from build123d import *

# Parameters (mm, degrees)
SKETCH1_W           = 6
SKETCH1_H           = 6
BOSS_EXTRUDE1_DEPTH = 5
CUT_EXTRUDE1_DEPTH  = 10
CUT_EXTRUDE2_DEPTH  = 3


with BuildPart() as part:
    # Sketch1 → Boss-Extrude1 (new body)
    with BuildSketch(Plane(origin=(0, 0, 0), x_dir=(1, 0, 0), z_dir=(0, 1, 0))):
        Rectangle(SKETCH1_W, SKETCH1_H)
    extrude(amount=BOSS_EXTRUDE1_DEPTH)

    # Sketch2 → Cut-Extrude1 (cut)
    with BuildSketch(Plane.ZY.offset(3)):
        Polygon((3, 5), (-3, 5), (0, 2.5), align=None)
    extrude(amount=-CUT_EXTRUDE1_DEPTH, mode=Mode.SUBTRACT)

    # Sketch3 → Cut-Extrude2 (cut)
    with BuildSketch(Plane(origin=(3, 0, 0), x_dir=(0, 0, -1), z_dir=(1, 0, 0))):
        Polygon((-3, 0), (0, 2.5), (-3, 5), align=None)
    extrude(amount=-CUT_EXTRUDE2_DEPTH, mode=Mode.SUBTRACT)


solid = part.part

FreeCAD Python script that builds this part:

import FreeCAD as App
import Part
import Sketcher
from FreeCAD import Vector
Q = App.Units.Quantity


def add_polygon(sketch, points):
    """Adds a closed chain of lines whose ends are joined by coincident constraints."""
    first, n = sketch.GeometryCount, len(points)
    for a, b in zip(points, points[1:] + points[:1]):
        sketch.addGeometry(Part.LineSegment(App.Vector(*a, 0), App.Vector(*b, 0)), False)
    for i in range(n):
        sketch.addConstraint(Sketcher.Constraint("Coincident", first + i, 2, first + (i + 1) % n, 1))

doc = App.newDocument("Part")
params = doc.addObject("Spreadsheet::Sheet", "Params")
for row, (alias, value) in enumerate([
    ("sketch1_width", "6 mm"),
    ("pad1_length", "5 mm"),
    ("sketch2_height", "6 mm"),
    ("pocket1_length", "10 mm"),
    ("sketch3_width", "5 mm"),
    ("pocket2_length", "3 mm"),
], start=1):
    params.set(f"A{row}", alias)
    params.set(f"B{row}", "=" + value)
    params.setAlias(f"B{row}", alias)

body = doc.addObject("PartDesign::Body", "Body")

# Sketch on XZ plane
sketch1 = body.newObject("Sketcher::SketchObject", "Sketch")
sketch1.AttachmentSupport = (doc.getObject("XZ_Plane"), [""])
sketch1.MapMode = "FlatFace"
add_polygon(sketch1, [(-3, -3), (-3, 3), (3, 3), (3, -3)])  # lines 0-3
sketch1.addConstraint(Sketcher.Constraint("Vertical", 0))
sketch1.addConstraint(Sketcher.Constraint("Horizontal", 1))
sketch1.addConstraint(Sketcher.Constraint("Vertical", 2))
sketch1.addConstraint(Sketcher.Constraint("Horizontal", 3))
sketch1.addConstraint(Sketcher.Constraint("Symmetric", 0, 2, 2, 2, -1, 1))
sketch1.addConstraint(Sketcher.Constraint("Equal", 3, 0))
sketch1.addConstraint(Sketcher.Constraint("DistanceX", 1, 1, 1, 2, Q("6 mm")))
sketch1.setExpression("Constraints[10]", "Params.sketch1_width")
pad1 = body.newObject("PartDesign::Pad", "Pad")
pad1.Profile = sketch1
pad1.setExpression("Length", "Params.pad1_length")
pad1.Reversed = True

# Sketch on YZ plane
sketch2 = body.newObject("Sketcher::SketchObject", "Sketch001")
sketch2.AttachmentSupport = (doc.getObject("YZ_Plane"), [""])
sketch2.MapMode = "FlatFace"
sketch2.AttachmentOffset = App.Placement(Vector(0, 0, -3), App.Rotation())
add_polygon(sketch2, [(5, 3), (5, -3), (2.5, 0)])  # lines 0-2
sketch2.addConstraint(Sketcher.Constraint("Vertical", 0))
sketch2.addConstraint(Sketcher.Constraint("PointOnObject", 1, 2, -1))
sketch2.addConstraint(Sketcher.Constraint("Equal", 1, 2))
sketch2.addConstraint(Sketcher.Constraint("DistanceY", 0, 2, 0, 1, Q("6 mm")))
sketch2.addConstraint(Sketcher.Constraint("DistanceX", -1, 1, 0, 2, Q("5 mm")))
sketch2.addConstraint(Sketcher.Constraint("DistanceX", -1, 1, 1, 2, Q("2.5 mm")))
sketch2.setExpression("Constraints[6]", "Params.sketch2_height")
pocket1 = body.newObject("PartDesign::Pocket", "Pocket")
pocket1.Profile = sketch2
pocket1.setExpression("Length", "Params.pocket1_length")
pocket1.Reversed = True

# Sketch on YZ plane
sketch3 = body.newObject("Sketcher::SketchObject", "Sketch002")
sketch3.AttachmentSupport = (doc.getObject("YZ_Plane"), [""])
sketch3.MapMode = "FlatFace"
sketch3.AttachmentOffset = App.Placement(Vector(0, 0, 3), App.Rotation())
add_polygon(sketch3, [(0, 3), (2.5, 0), (5, 3)])  # lines 0-2
sketch3.addConstraint(Sketcher.Constraint("Horizontal", 2))
sketch3.addConstraint(Sketcher.Constraint("PointOnObject", 0, 2, -1))
sketch3.addConstraint(Sketcher.Constraint("PointOnObject", 2, 2, -2))
sketch3.addConstraint(Sketcher.Constraint("Equal", 0, 1))
sketch3.addConstraint(Sketcher.Constraint("DistanceX", 2, 2, 2, 1, Q("5 mm")))
sketch3.addConstraint(Sketcher.Constraint("DistanceY", -1, 1, 1, 2, Q("3 mm")))
sketch3.setExpression("Constraints[7]", "Params.sketch3_width")
pocket2 = body.newObject("PartDesign::Pocket", "Pocket001")
pocket2.Profile = sketch3
pocket2.setExpression("Length", "Params.pocket2_length")

doc.recompute()
